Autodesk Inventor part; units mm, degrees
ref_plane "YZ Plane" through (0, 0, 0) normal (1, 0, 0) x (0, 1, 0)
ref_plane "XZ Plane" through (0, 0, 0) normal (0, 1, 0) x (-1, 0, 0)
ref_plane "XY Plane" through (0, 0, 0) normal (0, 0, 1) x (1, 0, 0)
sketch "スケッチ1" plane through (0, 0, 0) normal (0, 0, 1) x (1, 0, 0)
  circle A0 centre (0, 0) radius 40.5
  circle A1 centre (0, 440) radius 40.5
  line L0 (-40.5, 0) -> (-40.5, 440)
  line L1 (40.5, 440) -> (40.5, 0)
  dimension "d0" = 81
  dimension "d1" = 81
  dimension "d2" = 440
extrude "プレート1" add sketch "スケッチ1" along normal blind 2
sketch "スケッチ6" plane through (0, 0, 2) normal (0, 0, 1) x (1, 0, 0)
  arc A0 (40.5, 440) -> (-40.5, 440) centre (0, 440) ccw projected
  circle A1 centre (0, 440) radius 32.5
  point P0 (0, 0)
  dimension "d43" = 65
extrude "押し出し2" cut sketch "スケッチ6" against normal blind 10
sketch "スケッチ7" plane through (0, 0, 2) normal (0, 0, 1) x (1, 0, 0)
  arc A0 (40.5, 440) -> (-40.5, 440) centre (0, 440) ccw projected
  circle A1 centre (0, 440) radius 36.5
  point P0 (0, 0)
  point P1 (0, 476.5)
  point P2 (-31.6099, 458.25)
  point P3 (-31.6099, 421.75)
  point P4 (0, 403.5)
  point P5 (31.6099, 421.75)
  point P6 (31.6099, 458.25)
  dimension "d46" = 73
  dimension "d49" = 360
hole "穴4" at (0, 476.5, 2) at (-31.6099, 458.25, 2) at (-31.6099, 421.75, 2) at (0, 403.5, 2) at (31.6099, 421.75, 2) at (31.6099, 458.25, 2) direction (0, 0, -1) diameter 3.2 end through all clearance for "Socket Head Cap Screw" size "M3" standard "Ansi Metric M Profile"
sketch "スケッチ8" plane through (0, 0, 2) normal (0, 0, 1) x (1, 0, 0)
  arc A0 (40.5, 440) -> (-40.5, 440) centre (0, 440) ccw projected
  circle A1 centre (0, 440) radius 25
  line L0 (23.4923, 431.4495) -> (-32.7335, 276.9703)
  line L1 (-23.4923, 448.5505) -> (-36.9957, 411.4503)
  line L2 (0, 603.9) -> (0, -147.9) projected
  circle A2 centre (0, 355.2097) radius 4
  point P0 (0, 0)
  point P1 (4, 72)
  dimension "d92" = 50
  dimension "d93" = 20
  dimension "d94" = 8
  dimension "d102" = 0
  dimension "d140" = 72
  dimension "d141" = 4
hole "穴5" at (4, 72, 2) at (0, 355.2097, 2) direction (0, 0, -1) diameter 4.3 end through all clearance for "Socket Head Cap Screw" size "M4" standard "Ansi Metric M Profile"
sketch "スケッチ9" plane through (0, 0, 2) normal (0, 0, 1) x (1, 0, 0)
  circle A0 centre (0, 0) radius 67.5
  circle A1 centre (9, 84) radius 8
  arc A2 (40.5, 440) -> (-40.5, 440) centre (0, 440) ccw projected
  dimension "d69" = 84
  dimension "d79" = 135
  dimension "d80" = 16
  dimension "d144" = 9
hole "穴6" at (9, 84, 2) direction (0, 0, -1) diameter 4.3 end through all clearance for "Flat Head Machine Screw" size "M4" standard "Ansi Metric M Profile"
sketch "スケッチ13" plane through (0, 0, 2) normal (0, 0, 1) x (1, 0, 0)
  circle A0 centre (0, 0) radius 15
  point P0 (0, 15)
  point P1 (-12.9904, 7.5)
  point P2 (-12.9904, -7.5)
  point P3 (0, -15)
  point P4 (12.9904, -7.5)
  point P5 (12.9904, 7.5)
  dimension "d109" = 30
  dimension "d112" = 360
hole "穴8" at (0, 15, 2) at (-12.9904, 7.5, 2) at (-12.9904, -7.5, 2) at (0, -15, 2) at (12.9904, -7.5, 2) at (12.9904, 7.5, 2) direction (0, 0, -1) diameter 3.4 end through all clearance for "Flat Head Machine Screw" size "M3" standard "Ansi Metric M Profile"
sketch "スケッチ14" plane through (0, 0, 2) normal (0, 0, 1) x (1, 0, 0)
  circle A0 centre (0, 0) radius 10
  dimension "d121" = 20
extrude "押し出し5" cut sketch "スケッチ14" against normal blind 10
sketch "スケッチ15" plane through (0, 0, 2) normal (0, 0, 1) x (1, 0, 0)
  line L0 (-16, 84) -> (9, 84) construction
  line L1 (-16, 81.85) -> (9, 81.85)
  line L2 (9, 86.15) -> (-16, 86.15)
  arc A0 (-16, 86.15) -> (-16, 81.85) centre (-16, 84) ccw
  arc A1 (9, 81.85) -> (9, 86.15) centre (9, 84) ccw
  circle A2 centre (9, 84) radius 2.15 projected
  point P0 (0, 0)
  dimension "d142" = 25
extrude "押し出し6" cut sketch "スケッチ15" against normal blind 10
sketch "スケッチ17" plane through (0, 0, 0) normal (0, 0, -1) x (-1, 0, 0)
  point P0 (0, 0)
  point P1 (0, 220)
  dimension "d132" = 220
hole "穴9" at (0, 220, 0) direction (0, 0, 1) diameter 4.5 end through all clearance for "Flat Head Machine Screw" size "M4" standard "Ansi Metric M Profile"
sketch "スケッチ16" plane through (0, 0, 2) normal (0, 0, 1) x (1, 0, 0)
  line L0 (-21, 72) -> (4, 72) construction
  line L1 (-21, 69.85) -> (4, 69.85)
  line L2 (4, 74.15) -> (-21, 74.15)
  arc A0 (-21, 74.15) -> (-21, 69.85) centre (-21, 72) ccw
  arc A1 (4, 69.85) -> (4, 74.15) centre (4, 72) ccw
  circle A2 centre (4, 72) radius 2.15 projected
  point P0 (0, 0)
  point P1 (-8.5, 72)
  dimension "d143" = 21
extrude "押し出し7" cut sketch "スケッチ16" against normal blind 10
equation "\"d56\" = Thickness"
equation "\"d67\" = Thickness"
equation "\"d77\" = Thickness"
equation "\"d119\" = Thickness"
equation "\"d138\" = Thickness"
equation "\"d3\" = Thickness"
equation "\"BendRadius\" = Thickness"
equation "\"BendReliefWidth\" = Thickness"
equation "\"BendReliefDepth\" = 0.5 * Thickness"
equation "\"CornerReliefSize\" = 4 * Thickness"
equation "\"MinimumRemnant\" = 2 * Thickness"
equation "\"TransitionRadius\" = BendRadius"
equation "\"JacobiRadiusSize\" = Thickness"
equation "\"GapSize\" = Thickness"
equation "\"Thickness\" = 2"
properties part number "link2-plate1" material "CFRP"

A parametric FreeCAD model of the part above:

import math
import FreeCAD as App
import Part
import Sketcher
from FreeCAD import Vector

doc = App.newDocument("Part")
body = doc.addObject("PartDesign::Body", "Body")

# Sketch on XY plane
sketch1 = doc.addObject("Sketcher::SketchObject", "Sketch")
body.addObject(sketch1)
sketch1.AttachmentSupport = (doc.XY_Plane, [""])
sketch1.MapMode = "FlatFace"
sketch1.addGeometry(Part.ArcOfCircle(Part.Circle(Vector(0, 0, 0), Vector(0, 0, 1), 40), math.radians(180), math.radians(360)), False)
sketch1.addGeometry(Part.LineSegment(Vector(40, 0, 0), Vector(40, 440, 0)), False)
sketch1.addGeometry(Part.ArcOfCircle(Part.Circle(Vector(0, 440, 0), Vector(0, 0, 1), 40), math.radians(0), math.radians(180)), False)
sketch1.addGeometry(Part.LineSegment(Vector(-40, 440, 0), Vector(-40, 0, 0)), False)
sketch1.addConstraint(Sketcher.Constraint("Tangent", 0, 2, 1, 1))
sketch1.addConstraint(Sketcher.Constraint("Tangent", 1, 2, 2, 1))
sketch1.addConstraint(Sketcher.Constraint("Tangent", 2, 2, 3, 1))
sketch1.addConstraint(Sketcher.Constraint("Tangent", 3, 2, 0, 1))
sketch1.addConstraint(Sketcher.Constraint("Vertical", 1))
sketch1.addConstraint(Sketcher.Constraint("Vertical", 3))
sketch1.addConstraint(Sketcher.Constraint("Coincident", 0, 3, -1, 1))
sketch1.addConstraint(Sketcher.Constraint("Radius", 0, 40.5))
sketch1.addConstraint(Sketcher.Constraint("DistanceY", 1, 1, 1, 2, 440.0))
pad1 = doc.addObject("PartDesign::Pad", "Pad")
body.addObject(pad1)
pad1.Profile = sketch1
pad1.Length = 2

# Sketch on XY plane
sketch2 = doc.addObject("Sketcher::SketchObject", "Sketch001")
body.addObject(sketch2)
sketch2.AttachmentSupport = (doc.XY_Plane, [""])
sketch2.MapMode = "FlatFace"
sketch2.AttachmentOffset = App.Placement(Vector(0, 0, 2), App.Rotation())
sketch2.addGeometry(Part.Circle(Vector(0, 440, 0), Vector(0, 0, 1), 32), False)
sketch2.addConstraint(Sketcher.Constraint("PointOnObject", 0, 3, -2))
sketch2.addConstraint(Sketcher.Constraint("Diameter", 0, 65.0))
sketch2.addConstraint(Sketcher.Constraint("DistanceY", -1, 1, 0, 3, 440.0))
pocket1 = doc.addObject("PartDesign::Pocket", "Pocket")
body.addObject(pocket1)
pocket1.Profile = sketch2
pocket1.Length = 10

# Sketch on XY plane
sketch3 = doc.addObject("Sketcher::SketchObject", "Sketch002")
body.addObject(sketch3)
sketch3.AttachmentSupport = (doc.XY_Plane, [""])
sketch3.MapMode = "FlatFace"
sketch3.AttachmentOffset = App.Placement(Vector(0, 0, 2), App.Rotation())
sketch3.addGeometry(Part.Circle(Vector(0, 476.5, 0), Vector(0, 0, 1), 1.6), False)
sketch3.addGeometry(Part.Circle(Vector(-31.6, 458.2, 0), Vector(0, 0, 1), 1.6), False)
sketch3.addGeometry(Part.Circle(Vector(-31.6, 421.8, 0), Vector(0, 0, 1), 1.6), False)
sketch3.addGeometry(Part.Circle(Vector(0, 403.5, 0), Vector(0, 0, 1), 1.6), False)
sketch3.addGeometry(Part.Circle(Vector(31.6, 421.8, 0), Vector(0, 0, 1), 1.6), False)
sketch3.addGeometry(Part.Circle(Vector(31.6, 458.2, 0), Vector(0, 0, 1), 1.6), False)
sketch3.addConstraint(Sketcher.Constraint("Equal", 0, 1))
sketch3.addConstraint(Sketcher.Constraint("Equal", 1, 2))
sketch3.addConstraint(Sketcher.Constraint("Equal", 2, 3))
sketch3.addConstraint(Sketcher.Constraint("Equal", 3, 4))
sketch3.addConstraint(Sketcher.Constraint("Equal", 4, 5))
sketch3.addConstraint(Sketcher.Constraint("Symmetric", 2, 3, 4, 3, -2))
sketch3.addConstraint(Sketcher.Constraint("Symmetric", 1, 3, 5, 3, -2))
sketch3.addConstraint(Sketcher.Constraint("PointOnObject", 0, 3, -2))
sketch3.addConstraint(Sketcher.Constraint("PointOnObject", 3, 3, -2))
sketch3.addConstraint(Sketcher.Constraint("Vertical", 1, 3, 2, 3))
sketch3.addConstraint(Sketcher.Constraint("Diameter", 0, 3.2))
sketch3.addConstraint(Sketcher.Constraint("DistanceY", 3, 3, 0, 3, 73.0))
sketch3.addConstraint(Sketcher.Constraint("DistanceY", -1, 1, 0, 3, 476.5))
sketch3.addConstraint(Sketcher.Constraint("DistanceY", 2, 3, 1, 3, 36.5))
sketch3.addConstraint(Sketcher.Constraint("DistanceX", 1, 3, -1, 1, 31.61))
sketch3.addConstraint(Sketcher.Constraint("DistanceY", -1, 1, 1, 3, 458.25))
doc.recompute()
hole = doc.addObject("PartDesign::Hole", "Hole")
body.addObject(hole)
hole.Profile = sketch3
hole.ThreadType = "None"
hole.Diameter = 3.2
hole.DepthType = "ThroughAll"

# Sketch on XY plane
sketch4 = doc.addObject("Sketcher::SketchObject", "Sketch003")
body.addObject(sketch4)
sketch4.AttachmentSupport = (doc.XY_Plane, [""])
sketch4.MapMode = "FlatFace"
sketch4.AttachmentOffset = App.Placement(Vector(0, 0, 2), App.Rotation())
sketch4.addGeometry(Part.Circle(Vector(4, 72, 0), Vector(0, 0, 1), 2.1), False)
sketch4.addGeometry(Part.Circle(Vector(0, 355.2, 0), Vector(0, 0, 1), 2.1), False)
sketch4.addConstraint(Sketcher.Constraint("Equal", 0, 1))
sketch4.addConstraint(Sketcher.Constraint("PointOnObject", 1, 3, -2))
sketch4.addConstraint(Sketcher.Constraint("Diameter", 0, 4.3))
sketch4.addConstraint(Sketcher.Constraint("DistanceX", -1, 1, 0, 3, 4.0))
sketch4.addConstraint(Sketcher.Constraint("DistanceY", -1, 1, 0, 3, 72.0))
sketch4.addConstraint(Sketcher.Constraint("DistanceY", -1, 1, 1, 3, 355.2097))
doc.recompute()
hole2 = doc.addObject("PartDesign::Hole", "Hole001")
body.addObject(hole2)
hole2.Profile = sketch4
hole2.ThreadType = "None"
hole2.Diameter = 4.3
hole2.DepthType = "ThroughAll"

# Sketch on XY plane
sketch5 = doc.addObject("Sketcher::SketchObject", "Sketch004")
body.addObject(sketch5)
sketch5.AttachmentSupport = (doc.XY_Plane, [""])
sketch5.MapMode = "FlatFace"
sketch5.AttachmentOffset = App.Placement(Vector(0, 0, 2), App.Rotation())
sketch5.addGeometry(Part.Circle(Vector(9, 84, 0), Vector(0, 0, 1), 2.1), False)
sketch5.addConstraint(Sketcher.Constraint("Diameter", 0, 4.3))
sketch5.addConstraint(Sketcher.Constraint("DistanceX", -1, 1, 0, 3, 9.0))
sketch5.addConstraint(Sketcher.Constraint("DistanceY", -1, 1, 0, 3, 84.0))
doc.recompute()
hole3 = doc.addObject("PartDesign::Hole", "Hole002")
body.addObject(hole3)
hole3.Profile = sketch5
hole3.ThreadType = "None"
hole3.Diameter = 4.3
hole3.DepthType = "ThroughAll"

# Sketch on XY plane
sketch6 = doc.addObject("Sketcher::SketchObject", "Sketch005")
body.addObject(sketch6)
sketch6.AttachmentSupport = (doc.XY_Plane, [""])
sketch6.MapMode = "FlatFace"
sketch6.AttachmentOffset = App.Placement(Vector(0, 0, 2), App.Rotation())
sketch6.addGeometry(Part.Circle(Vector(0, 15, 0), Vector(0, 0, 1), 1.7), False)
sketch6.addGeometry(Part.Circle(Vector(-13, 7.5, 0), Vector(0, 0, 1), 1.7), False)
sketch6.addGeometry(Part.Circle(Vector(-13, -7.5, 0), Vector(0, 0, 1), 1.7), False)
sketch6.addGeometry(Part.Circle(Vector(0, -15, 0), Vector(0, 0, 1), 1.7), False)
sketch6.addGeometry(Part.Circle(Vector(13, -7.5, 0), Vector(0, 0, 1), 1.7), False)
sketch6.addGeometry(Part.Circle(Vector(13, 7.5, 0), Vector(0, 0, 1), 1.7), False)
sketch6.addConstraint(Sketcher.Constraint("Equal", 0, 1))
sketch6.addConstraint(Sketcher.Constraint("Equal", 1, 2))
sketch6.addConstraint(Sketcher.Constraint("Equal", 2, 3))
sketch6.addConstraint(Sketcher.Constraint("Equal", 3, 4))
sketch6.addConstraint(Sketcher.Constraint("Equal", 4, 5))
sketch6.addConstraint(Sketcher.Constraint("Symmetric", 0, 3, 3, 3, -1, 1))
sketch6.addConstraint(Sketcher.Constraint("Symmetric", 1, 3, 4, 3, -1, 1))
sketch6.addConstraint(Sketcher.Constraint("Symmetric", 2, 3, 5, 3, -1, 1))
sketch6.addConstraint(Sketcher.Constraint("Symmetric", 2, 3, 4, 3, -2))
sketch6.addConstraint(Sketcher.Constraint("PointOnObject", 0, 3, -2))
sketch6.addConstraint(Sketcher.Constraint("Diameter", 0, 3.4))
sketch6.addConstraint(Sketcher.Constraint("DistanceY", -1, 1, 0, 3, 15.0))
sketch6.addConstraint(Sketcher.Constraint("DistanceY", 2, 3, 1, 3, 15.0))
sketch6.addConstraint(Sketcher.Constraint("DistanceX", 1, 3, -1, 1, 12.9904))
doc.recompute()
hole4 = doc.addObject("PartDesign::Hole", "Hole003")
body.addObject(hole4)
hole4.Profile = sketch6
hole4.ThreadType = "None"
hole4.Diameter = 3.4
hole4.DepthType = "ThroughAll"

# Sketch on XY plane
sketch7 = doc.addObject("Sketcher::SketchObject", "Sketch006")
body.addObject(sketch7)
sketch7.AttachmentSupport = (doc.XY_Plane, [""])
sketch7.MapMode = "FlatFace"
sketch7.AttachmentOffset = App.Placement(Vector(0, 0, 2), App.Rotation())
sketch7.addGeometry(Part.Circle(Vector(0, 0, 0), Vector(0, 0, 1), 10), False)
sketch7.addConstraint(Sketcher.Constraint("Coincident", 0, 3, -1, 1))
sketch7.addConstraint(Sketcher.Constraint("Diameter", 0, 20.0))
pocket2 = doc.addObject("PartDesign::Pocket", "Pocket001")
body.addObject(pocket2)
pocket2.Profile = sketch7
pocket2.Length = 10

# Sketch on XY plane
sketch8 = doc.addObject("Sketcher::SketchObject", "Sketch007")
body.addObject(sketch8)
sketch8.AttachmentSupport = (doc.XY_Plane, [""])
sketch8.MapMode = "FlatFace"
sketch8.AttachmentOffset = App.Placement(Vector(0, 0, 2), App.Rotation())
sketch8.addGeometry(Part.ArcOfCircle(Part.Circle(Vector(-16, 84, 0), Vector(0, 0, 1), 2.2), math.radians(90), math.radians(270)), False)
sketch8.addGeometry(Part.LineSegment(Vector(-16, 81.8, 0), Vector(9, 81.8, 0)), False)
sketch8.addGeometry(Part.ArcOfCircle(Part.Circle(Vector(9, 84, 0), Vector(0, 0, 1), 2.1), math.radians(-90), math.radians(90)), False)
sketch8.addGeometry(Part.LineSegment(Vector(9, 86.2, 0), Vector(-16, 86.2, 0)), False)
sketch8.addConstraint(Sketcher.Constraint("Tangent", 0, 2, 1, 1))
sketch8.addConstraint(Sketcher.Constraint("Tangent", 1, 2, 2, 1))
sketch8.addConstraint(Sketcher.Constraint("Tangent", 2, 2, 3, 1))
sketch8.addConstraint(Sketcher.Constraint("Tangent", 3, 2, 0, 1))
sketch8.addConstraint(Sketcher.Constraint("Horizontal", 1))
sketch8.addConstraint(Sketcher.Constraint("Horizontal", 3))
sketch8.addConstraint(Sketcher.Constraint("DistanceX", 1, 1, 1, 2, 25.0))
sketch8.addConstraint(Sketcher.Constraint("Radius", 0, 2.15))
sketch8.addConstraint(Sketcher.Constraint("DistanceX", 0, 3, -1, 1, 16.0))
sketch8.addConstraint(Sketcher.Constraint("DistanceY", -1, 1, 0, 3, 84.0))
pocket3 = doc.addObject("PartDesign::Pocket", "Pocket002")
body.addObject(pocket3)
pocket3.Profile = sketch8
pocket3.Length = 10

# Sketch on XY plane
sketch9 = doc.addObject("Sketcher::SketchObject", "Sketch008")
body.addObject(sketch9)
sketch9.AttachmentSupport = (doc.XY_Plane, [""])
sketch9.MapMode = "FlatFace"
sketch9.addGeometry(Part.Circle(Vector(0, 220, 0), Vector(0, 0, 1), 2.2), False)
sketch9.addConstraint(Sketcher.Constraint("PointOnObject", 0, 3, -2))
sketch9.addConstraint(Sketcher.Constraint("Diameter", 0, 4.5))
sketch9.addConstraint(Sketcher.Constraint("DistanceY", -1, 1, 0, 3, 220.0))
doc.recompute()
hole5 = doc.addObject("PartDesign::Hole", "Hole004")
body.addObject(hole5)
hole5.Profile = sketch9
hole5.ThreadType = "None"
hole5.Diameter = 4.5
hole5.DepthType = "ThroughAll"
hole5.Reversed = True

# Sketch on XY plane
sketch10 = doc.addObject("Sketcher::SketchObject", "Sketch009")
body.addObject(sketch10)
sketch10.AttachmentSupport = (doc.XY_Plane, [""])
sketch10.MapMode = "FlatFace"
sketch10.AttachmentOffset = App.Placement(Vector(0, 0, 2), App.Rotation())
sketch10.addGeometry(Part.ArcOfCircle(Part.Circle(Vector(-21, 72, 0), Vector(0, 0, 1), 2.2), math.radians(90), math.radians(270)), False)
sketch10.addGeometry(Part.LineSegment(Vector(-21, 69.8, 0), Vector(4, 69.8, 0)), False)
sketch10.addGeometry(Part.ArcOfCircle(Part.Circle(Vector(4, 72, 0), Vector(0, 0, 1), 2.1), math.radians(-90), math.radians(90)), False)
sketch10.addGeometry(Part.LineSegment(Vector(4, 74.2, 0), Vector(-21, 74.2, 0)), False)
sketch10.addConstraint(Sketcher.Constraint("Tangent", 0, 2, 1, 1))
sketch10.addConstraint(Sketcher.Constraint("Tangent", 1, 2, 2, 1))
sketch10.addConstraint(Sketcher.Constraint("Tangent", 2, 2, 3, 1))
sketch10.addConstraint(Sketcher.Constraint("Tangent", 3, 2, 0, 1))
sketch10.addConstraint(Sketcher.Constraint("Horizontal", 1))
sketch10.addConstraint(Sketcher.Constraint("Horizontal", 3))
sketch10.addConstraint(Sketcher.Constraint("DistanceX", 0, 3, -1, 1, 21.0))
sketch10.addConstraint(Sketcher.Constraint("DistanceX", 1, 1, 1, 2, 25.0))
sketch10.addConstraint(Sketcher.Constraint("Radius", 0, 2.15))
sketch10.addConstraint(Sketcher.Constraint("DistanceY", -1, 1, 0, 3, 72.0))
pocket4 = doc.addObject("PartDesign::Pocket", "Pocket003")
body.addObject(pocket4)
pocket4.Profile = sketch10
pocket4.Length = 10

doc.recompute()
